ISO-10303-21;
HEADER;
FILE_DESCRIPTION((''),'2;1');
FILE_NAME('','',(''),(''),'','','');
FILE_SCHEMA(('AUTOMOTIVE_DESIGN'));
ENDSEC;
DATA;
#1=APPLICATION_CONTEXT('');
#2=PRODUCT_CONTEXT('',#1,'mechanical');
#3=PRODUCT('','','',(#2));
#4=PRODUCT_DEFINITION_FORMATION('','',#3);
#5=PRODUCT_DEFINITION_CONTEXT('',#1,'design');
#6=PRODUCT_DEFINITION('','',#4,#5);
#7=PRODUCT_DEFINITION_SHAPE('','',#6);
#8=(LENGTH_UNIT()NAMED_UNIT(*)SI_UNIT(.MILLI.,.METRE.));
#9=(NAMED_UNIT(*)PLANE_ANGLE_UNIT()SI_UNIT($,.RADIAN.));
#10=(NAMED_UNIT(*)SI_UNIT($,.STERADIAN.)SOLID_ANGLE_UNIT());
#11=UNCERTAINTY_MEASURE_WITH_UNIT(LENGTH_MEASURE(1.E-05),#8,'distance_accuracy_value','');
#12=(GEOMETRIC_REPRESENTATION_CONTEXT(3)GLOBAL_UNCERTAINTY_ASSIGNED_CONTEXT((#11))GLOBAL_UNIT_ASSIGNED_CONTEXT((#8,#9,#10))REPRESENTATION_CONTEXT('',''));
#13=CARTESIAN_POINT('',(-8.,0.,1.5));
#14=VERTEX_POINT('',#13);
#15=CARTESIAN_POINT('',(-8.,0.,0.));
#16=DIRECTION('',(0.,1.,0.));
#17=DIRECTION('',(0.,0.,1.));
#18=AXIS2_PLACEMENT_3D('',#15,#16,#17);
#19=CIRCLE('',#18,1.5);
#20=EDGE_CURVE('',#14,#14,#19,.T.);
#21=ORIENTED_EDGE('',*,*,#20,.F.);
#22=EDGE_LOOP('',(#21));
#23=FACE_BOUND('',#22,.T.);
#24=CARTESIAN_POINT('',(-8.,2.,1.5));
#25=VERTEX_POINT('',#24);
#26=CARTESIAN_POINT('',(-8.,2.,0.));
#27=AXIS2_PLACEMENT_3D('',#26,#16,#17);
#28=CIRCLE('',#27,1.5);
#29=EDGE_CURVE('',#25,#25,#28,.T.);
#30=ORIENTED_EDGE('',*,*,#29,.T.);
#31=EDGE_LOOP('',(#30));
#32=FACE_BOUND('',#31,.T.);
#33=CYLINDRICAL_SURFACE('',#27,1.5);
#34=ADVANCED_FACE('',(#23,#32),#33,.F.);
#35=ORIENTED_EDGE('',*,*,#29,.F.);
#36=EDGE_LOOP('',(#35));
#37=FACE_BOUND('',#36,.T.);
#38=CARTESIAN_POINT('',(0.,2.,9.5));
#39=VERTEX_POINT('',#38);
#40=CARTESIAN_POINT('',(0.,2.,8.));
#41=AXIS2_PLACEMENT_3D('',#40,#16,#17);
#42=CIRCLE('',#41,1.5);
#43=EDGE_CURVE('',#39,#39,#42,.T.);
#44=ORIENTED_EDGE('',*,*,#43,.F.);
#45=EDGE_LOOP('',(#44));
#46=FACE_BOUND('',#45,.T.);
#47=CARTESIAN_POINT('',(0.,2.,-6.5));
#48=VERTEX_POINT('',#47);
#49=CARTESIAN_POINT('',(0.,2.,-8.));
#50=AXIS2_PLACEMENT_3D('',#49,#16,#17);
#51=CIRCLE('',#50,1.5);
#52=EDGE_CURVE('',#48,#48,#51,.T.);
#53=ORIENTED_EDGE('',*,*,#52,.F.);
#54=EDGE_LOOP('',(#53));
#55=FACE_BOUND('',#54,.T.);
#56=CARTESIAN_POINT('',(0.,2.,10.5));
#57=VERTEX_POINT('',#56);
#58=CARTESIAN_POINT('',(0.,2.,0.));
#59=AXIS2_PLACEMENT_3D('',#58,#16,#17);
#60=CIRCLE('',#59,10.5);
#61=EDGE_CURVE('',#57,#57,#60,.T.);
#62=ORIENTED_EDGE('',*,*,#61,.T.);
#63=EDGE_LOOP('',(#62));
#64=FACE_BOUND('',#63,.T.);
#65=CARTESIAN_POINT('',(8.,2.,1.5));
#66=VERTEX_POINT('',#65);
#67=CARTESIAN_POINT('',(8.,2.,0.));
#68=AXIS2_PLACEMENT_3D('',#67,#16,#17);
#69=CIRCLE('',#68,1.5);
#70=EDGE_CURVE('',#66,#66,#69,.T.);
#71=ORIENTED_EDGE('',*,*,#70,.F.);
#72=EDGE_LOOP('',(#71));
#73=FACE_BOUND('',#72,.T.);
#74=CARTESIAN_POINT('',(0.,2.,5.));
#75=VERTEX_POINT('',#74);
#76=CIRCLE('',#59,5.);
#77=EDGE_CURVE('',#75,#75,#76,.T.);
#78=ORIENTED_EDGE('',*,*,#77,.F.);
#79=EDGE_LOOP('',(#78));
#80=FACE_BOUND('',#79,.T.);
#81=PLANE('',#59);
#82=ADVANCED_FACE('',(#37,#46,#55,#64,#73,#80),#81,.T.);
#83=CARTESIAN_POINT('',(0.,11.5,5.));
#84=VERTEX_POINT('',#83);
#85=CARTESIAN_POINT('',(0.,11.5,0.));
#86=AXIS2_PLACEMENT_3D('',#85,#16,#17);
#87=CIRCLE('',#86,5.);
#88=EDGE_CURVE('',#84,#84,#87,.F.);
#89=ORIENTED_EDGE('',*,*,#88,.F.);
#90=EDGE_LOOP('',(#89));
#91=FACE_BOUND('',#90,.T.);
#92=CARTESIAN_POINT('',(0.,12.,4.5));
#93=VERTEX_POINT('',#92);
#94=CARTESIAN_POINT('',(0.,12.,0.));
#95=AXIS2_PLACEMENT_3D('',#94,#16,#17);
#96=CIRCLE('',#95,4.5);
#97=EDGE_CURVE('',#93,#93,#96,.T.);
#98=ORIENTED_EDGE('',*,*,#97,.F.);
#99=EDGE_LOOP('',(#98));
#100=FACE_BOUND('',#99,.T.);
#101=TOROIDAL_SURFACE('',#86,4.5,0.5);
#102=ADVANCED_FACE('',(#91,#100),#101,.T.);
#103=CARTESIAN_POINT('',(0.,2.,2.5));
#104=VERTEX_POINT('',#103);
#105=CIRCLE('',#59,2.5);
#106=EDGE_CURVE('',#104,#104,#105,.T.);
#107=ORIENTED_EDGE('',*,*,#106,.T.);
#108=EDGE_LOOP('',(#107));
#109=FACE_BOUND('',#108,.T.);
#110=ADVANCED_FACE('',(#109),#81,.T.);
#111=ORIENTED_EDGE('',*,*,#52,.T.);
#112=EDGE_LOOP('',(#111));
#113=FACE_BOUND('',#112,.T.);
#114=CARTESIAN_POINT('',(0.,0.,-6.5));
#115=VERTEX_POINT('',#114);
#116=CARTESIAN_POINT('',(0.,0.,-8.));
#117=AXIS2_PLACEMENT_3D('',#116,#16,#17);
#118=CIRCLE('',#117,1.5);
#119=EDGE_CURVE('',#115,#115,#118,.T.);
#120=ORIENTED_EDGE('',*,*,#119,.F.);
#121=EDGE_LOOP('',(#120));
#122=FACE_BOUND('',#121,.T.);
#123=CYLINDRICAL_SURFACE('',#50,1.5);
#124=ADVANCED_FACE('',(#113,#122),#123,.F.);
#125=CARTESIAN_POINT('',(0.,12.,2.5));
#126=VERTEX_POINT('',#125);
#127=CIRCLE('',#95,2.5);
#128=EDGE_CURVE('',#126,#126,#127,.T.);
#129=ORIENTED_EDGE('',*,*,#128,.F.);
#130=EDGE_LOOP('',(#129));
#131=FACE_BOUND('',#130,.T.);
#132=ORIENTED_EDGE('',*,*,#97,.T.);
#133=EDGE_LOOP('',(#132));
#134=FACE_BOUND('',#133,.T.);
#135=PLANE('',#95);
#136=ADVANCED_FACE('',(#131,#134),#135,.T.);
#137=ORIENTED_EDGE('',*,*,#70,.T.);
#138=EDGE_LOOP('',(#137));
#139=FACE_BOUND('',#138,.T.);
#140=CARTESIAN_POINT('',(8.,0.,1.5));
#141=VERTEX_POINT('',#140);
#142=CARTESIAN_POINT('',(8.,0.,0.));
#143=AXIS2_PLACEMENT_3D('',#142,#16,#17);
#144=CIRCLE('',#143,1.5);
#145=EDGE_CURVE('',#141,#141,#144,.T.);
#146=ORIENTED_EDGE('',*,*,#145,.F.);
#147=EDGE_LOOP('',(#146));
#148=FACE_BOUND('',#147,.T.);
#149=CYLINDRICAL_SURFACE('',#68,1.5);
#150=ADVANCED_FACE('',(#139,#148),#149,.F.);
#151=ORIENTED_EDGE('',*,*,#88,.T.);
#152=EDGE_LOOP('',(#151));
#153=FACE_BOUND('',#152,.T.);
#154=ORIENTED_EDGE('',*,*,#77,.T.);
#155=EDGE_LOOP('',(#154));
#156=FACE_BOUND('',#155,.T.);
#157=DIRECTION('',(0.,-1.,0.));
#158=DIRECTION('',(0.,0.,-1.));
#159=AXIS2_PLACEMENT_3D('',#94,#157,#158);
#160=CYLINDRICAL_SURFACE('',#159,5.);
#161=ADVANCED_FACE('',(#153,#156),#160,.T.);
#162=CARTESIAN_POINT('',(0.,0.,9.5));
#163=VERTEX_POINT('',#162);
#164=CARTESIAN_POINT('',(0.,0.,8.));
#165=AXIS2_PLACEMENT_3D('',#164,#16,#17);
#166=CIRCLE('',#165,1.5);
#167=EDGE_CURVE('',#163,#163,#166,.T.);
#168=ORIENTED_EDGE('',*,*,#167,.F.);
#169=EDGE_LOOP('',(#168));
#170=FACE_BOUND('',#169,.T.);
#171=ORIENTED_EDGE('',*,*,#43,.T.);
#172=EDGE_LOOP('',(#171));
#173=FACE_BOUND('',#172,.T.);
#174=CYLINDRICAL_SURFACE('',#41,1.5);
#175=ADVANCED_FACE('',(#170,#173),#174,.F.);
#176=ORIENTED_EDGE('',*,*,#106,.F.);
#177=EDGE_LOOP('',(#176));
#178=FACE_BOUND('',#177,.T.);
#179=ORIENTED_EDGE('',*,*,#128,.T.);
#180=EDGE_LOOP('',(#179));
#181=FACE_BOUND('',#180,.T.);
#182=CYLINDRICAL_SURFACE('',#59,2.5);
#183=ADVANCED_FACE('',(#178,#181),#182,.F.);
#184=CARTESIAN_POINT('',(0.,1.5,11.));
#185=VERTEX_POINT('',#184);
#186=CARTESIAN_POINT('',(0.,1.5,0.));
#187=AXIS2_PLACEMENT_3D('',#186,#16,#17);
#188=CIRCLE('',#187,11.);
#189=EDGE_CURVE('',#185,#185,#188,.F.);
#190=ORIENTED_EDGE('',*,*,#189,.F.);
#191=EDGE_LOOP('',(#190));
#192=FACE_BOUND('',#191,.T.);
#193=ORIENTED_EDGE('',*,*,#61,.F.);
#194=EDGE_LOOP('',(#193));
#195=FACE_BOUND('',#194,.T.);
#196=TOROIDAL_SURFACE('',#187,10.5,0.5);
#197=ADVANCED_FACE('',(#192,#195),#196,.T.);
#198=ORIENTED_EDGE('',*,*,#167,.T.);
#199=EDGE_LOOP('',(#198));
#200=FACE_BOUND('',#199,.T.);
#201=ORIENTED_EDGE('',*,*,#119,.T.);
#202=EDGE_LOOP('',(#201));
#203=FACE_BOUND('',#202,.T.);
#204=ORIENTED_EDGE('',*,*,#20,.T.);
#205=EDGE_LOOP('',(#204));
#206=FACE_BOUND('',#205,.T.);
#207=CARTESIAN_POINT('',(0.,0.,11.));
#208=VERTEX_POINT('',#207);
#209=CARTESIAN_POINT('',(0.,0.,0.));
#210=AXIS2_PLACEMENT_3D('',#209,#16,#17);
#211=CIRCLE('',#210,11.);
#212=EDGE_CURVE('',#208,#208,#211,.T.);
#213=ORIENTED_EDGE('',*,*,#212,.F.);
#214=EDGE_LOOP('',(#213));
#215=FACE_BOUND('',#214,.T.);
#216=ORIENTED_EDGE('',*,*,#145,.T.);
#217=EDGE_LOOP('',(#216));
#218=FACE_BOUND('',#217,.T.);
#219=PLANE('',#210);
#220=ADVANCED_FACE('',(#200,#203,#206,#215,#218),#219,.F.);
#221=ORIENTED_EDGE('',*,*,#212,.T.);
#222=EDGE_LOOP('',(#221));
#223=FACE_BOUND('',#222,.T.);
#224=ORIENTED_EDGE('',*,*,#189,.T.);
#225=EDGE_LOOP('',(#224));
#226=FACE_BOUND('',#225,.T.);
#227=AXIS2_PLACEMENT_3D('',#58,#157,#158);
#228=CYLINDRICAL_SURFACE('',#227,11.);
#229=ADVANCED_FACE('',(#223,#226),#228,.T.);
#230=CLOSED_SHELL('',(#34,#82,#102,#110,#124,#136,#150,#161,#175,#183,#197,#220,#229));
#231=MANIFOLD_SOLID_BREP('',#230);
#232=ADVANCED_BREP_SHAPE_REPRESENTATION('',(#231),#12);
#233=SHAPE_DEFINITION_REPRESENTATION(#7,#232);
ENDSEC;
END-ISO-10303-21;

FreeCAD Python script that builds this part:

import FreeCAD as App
import Part
import Sketcher
Q = App.Units.Quantity


def edges_at(feature, points):
    """Names of the edges that pass closest to the given points."""
    edges = feature.Shape.Edges
    near = lambda p: min(range(len(edges)), key=lambda i: edges[i].distToShape(Part.Vertex(*p))[0])
    return sorted({f"Edge{near(p) + 1}" for p in points})

doc = App.newDocument("Part")
params = doc.addObject("Spreadsheet::Sheet", "Params")
for row, (alias, value) in enumerate([
    ("sketch1_diameter", "22 mm"),
    ("pad1_length", "2 mm"),
    ("sketch2_diameter", "10 mm"),
    ("pad2_length", "10 mm"),
    ("sketch3_diameter", "5 mm"),
    ("pocket1_length", "10 mm"),
    ("sketch4_diameter", "3 mm"),
    ("hole_diameter", "3 mm"),
    ("fillet_radius", "0.5 mm"),
], start=1):
    params.set(f"A{row}", alias)
    params.set(f"B{row}", "=" + value)
    params.setAlias(f"B{row}", alias)

body = doc.addObject("PartDesign::Body", "Body")

# Sketch on XZ plane
sketch1 = body.newObject("Sketcher::SketchObject", "Sketch")
sketch1.AttachmentSupport = (doc.getObject("XZ_Plane"), [""])
sketch1.MapMode = "FlatFace"
sketch1.addGeometry(Part.Circle(App.Vector(0, 0, 0), App.Vector(0, 0, 1), 11), False)
sketch1.addConstraint([
    Sketcher.Constraint("Coincident", 0, 3, -1, 1),
    Sketcher.Constraint("Diameter", 0, Q("22 mm")),
])
sketch1.setExpression("Constraints[1]", "Params.sketch1_diameter")
pad1 = body.newObject("PartDesign::Pad", "Pad")
pad1.Profile = sketch1
pad1.setExpression("Length", "Params.pad1_length")
pad1.Reversed = True

# Sketch on XZ plane
sketch2 = body.newObject("Sketcher::SketchObject", "Sketch001")
sketch2.AttachmentSupport = (doc.getObject("XZ_Plane"), [""])
sketch2.MapMode = "FlatFace"
sketch2.AttachmentOffset = App.Placement(App.Vector(0, 0, -2), App.Rotation())
sketch2.addGeometry(Part.Circle(App.Vector(0, 0, 0), App.Vector(0, 0, 1), 5), False)
sketch2.addConstraint([
    Sketcher.Constraint("Coincident", 0, 3, -1, 1),
    Sketcher.Constraint("Diameter", 0, Q("10 mm")),
])
sketch2.setExpression("Constraints[1]", "Params.sketch2_diameter")
pad2 = body.newObject("PartDesign::Pad", "Pad001")
pad2.Profile = sketch2
pad2.setExpression("Length", "Params.pad2_length")
pad2.Reversed = True

# Sketch on XZ plane
sketch3 = body.newObject("Sketcher::SketchObject", "Sketch002")
sketch3.AttachmentSupport = (doc.getObject("XZ_Plane"), [""])
sketch3.MapMode = "FlatFace"
sketch3.AttachmentOffset = App.Placement(App.Vector(0, 0, -12), App.Rotation())
sketch3.addGeometry(Part.Circle(App.Vector(0, 0, 0), App.Vector(0, 0, 1), 2.5), False)
sketch3.addConstraint([
    Sketcher.Constraint("Coincident", 0, 3, -1, 1),
    Sketcher.Constraint("Diameter", 0, Q("5 mm")),
])
sketch3.setExpression("Constraints[1]", "Params.sketch3_diameter")
pocket1 = body.newObject("PartDesign::Pocket", "Pocket")
pocket1.Profile = sketch3
pocket1.setExpression("Length", "Params.pocket1_length")
pocket1.Reversed = True

# Sketch on XZ plane
sketch4 = body.newObject("Sketcher::SketchObject", "Sketch003")
sketch4.AttachmentSupport = (doc.getObject("XZ_Plane"), [""])
sketch4.MapMode = "FlatFace"
sketch4.AttachmentOffset = App.Placement(App.Vector(0, 0, -2), App.Rotation())
sketch4.addGeometry([
    Part.Circle(App.Vector(0, -8, 0), App.Vector(0, 0, 1), 1.5),
    Part.Circle(App.Vector(8, 0, 0), App.Vector(0, 0, 1), 1.5),
    Part.Circle(App.Vector(0, 8, 0), App.Vector(0, 0, 1), 1.5),
    Part.Circle(App.Vector(-8, 0, 0), App.Vector(0, 0, 1), 1.5),
], False)
sketch4.addConstraint([
    Sketcher.Constraint("Equal", 0, 1),
    Sketcher.Constraint("Equal", 1, 2),
    Sketcher.Constraint("Equal", 2, 3),
    Sketcher.Constraint("Symmetric", 0, 3, 2, 3, -1, 1),
    Sketcher.Constraint("Symmetric", 1, 3, 3, 3, -1, 1),
    Sketcher.Constraint("PointOnObject", 0, 3, -2),
    Sketcher.Constraint("PointOnObject", 1, 3, -1),
    Sketcher.Constraint("Diameter", 0, Q("3 mm")),
    Sketcher.Constraint("DistanceY", 0, 3, -1, 1, Q("8 mm")),
    Sketcher.Constraint("DistanceX", -1, 1, 1, 3, Q("8 mm")),
])
sketch4.setExpression("Constraints[7]", "Params.sketch4_diameter")
doc.recompute()
hole = body.newObject("PartDesign::Hole", "Hole")
hole.Profile = sketch4
hole.ThreadType = "None"
hole.setExpression("Diameter", "Params.hole_diameter")
hole.DepthType = "ThroughAll"
hole.Reversed = True
doc.recompute()

fillet = body.newObject("PartDesign::Fillet", "Fillet")
fillet.Base = (hole, edges_at(hole, [(0, 2, -11), (0, 12, -5)]))
fillet.setExpression("Radius", "Params.fillet_radius")

doc.recompute()
